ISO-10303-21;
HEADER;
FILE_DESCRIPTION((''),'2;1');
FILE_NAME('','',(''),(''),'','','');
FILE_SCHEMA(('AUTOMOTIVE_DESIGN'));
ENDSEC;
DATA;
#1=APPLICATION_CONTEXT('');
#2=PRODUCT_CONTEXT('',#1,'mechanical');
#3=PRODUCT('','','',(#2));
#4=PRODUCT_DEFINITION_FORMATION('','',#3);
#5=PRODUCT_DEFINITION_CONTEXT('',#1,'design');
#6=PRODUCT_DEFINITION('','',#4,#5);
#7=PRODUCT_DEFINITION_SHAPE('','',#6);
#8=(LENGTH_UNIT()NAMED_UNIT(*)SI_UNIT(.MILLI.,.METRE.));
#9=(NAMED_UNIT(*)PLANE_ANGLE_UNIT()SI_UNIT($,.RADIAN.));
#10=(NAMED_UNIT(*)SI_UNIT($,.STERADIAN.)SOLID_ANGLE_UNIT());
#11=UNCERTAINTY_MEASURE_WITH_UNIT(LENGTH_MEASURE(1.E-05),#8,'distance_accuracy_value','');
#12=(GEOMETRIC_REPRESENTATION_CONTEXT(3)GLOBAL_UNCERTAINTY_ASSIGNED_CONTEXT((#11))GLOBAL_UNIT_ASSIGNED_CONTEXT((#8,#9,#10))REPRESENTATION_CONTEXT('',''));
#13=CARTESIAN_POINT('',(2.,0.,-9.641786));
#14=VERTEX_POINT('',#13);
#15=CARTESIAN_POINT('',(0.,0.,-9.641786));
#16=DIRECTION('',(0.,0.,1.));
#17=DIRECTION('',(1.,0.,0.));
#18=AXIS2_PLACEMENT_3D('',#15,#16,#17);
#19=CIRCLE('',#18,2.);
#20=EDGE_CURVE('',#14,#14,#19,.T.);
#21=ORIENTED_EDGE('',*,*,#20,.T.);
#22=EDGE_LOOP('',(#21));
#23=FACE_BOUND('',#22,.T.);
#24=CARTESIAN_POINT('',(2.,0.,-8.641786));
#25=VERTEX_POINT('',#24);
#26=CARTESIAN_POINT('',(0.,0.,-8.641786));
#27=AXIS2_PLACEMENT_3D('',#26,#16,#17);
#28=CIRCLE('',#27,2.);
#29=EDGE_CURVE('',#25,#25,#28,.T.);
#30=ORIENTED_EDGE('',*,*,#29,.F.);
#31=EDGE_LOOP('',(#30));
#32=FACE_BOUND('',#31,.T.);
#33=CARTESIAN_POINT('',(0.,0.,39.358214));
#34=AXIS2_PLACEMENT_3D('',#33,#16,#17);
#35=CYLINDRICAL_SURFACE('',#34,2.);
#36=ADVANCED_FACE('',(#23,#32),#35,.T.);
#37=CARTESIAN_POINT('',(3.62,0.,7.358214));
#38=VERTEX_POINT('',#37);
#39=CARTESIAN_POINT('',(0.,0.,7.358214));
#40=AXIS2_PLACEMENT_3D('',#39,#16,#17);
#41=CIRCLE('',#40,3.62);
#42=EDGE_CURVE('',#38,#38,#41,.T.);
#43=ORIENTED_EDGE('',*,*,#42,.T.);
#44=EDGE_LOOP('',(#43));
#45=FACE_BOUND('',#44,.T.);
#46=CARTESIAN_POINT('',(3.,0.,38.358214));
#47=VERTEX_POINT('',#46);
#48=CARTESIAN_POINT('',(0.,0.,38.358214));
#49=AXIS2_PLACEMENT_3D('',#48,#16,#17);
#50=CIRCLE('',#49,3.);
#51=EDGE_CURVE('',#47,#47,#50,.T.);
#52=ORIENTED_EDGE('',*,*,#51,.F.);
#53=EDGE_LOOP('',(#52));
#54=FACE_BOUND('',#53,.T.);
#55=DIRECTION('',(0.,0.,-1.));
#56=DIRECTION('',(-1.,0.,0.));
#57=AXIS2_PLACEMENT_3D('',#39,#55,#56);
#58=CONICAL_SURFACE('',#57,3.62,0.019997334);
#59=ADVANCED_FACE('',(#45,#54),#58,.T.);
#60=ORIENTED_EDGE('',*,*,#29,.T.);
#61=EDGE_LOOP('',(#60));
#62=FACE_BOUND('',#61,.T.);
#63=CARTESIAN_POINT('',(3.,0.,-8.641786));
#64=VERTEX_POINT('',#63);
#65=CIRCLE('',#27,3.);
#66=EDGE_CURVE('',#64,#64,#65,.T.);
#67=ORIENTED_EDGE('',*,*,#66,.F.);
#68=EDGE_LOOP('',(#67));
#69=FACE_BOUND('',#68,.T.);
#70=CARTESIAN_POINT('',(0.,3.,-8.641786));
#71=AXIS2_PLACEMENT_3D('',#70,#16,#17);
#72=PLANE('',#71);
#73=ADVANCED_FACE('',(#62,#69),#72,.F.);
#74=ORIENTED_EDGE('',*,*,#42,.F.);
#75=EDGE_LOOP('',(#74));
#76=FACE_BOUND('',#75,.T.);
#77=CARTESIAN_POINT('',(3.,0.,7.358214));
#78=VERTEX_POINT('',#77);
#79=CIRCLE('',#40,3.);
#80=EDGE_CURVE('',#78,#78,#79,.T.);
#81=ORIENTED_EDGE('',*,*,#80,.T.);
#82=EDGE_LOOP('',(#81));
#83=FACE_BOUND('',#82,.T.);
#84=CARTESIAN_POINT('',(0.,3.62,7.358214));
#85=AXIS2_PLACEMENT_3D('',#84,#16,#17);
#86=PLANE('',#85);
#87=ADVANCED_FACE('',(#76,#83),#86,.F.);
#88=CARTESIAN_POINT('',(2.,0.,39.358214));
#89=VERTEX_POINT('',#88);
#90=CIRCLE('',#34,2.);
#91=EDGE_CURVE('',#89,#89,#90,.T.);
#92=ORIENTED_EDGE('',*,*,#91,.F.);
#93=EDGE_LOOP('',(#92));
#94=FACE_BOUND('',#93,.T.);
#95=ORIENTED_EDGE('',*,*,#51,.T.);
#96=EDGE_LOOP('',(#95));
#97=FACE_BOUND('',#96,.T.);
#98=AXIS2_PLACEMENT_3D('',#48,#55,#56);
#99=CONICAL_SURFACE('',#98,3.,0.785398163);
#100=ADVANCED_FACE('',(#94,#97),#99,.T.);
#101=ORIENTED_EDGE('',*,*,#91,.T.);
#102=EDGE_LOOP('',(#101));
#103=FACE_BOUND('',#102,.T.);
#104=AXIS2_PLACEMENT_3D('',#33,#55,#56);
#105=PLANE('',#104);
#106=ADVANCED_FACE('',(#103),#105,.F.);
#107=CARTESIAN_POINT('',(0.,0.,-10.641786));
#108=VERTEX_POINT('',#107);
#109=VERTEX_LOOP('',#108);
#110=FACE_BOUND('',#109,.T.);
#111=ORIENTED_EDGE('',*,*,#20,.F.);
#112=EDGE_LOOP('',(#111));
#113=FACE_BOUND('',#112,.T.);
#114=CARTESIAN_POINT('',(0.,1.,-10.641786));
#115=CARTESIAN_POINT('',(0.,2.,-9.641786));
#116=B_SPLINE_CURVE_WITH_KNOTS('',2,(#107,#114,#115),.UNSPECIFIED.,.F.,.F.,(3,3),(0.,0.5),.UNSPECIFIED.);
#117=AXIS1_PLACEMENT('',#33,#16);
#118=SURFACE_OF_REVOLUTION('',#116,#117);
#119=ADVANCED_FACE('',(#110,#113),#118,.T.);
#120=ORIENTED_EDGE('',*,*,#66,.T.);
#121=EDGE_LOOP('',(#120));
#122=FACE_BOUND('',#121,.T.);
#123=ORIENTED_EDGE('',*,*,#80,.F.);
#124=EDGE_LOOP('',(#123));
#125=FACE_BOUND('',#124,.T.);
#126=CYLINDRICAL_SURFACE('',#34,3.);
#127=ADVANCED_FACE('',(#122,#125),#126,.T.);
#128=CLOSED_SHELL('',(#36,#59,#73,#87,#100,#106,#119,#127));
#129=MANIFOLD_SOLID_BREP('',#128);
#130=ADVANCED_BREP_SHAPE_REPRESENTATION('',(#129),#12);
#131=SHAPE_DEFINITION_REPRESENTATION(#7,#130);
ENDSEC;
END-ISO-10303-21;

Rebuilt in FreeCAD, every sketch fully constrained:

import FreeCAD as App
import Part
import Sketcher
Q = App.Units.Quantity

doc = App.newDocument("Part")
body = doc.addObject("PartDesign::Body", "Body")

# Sketch on YZ plane
sketch1 = body.newObject("Sketcher::SketchObject", "Sketch")
sketch1.AttachmentSupport = (doc.getObject("YZ_Plane"), [""])
sketch1.MapMode = "FlatFace"
sketch1.addGeometry(Part.LineSegment(App.Vector(2, 39.358214, 0), App.Vector(0, 39.358214, 0)), False)
sketch1.addGeometry(Part.LineSegment(App.Vector(0, 39.358214, 0), App.Vector(0, -10.641786, 0)), False)
sketch1.addGeometry(Part.BSplineCurve([App.Vector(2, -9.641786, 0), App.Vector(1, -10.641786, 0), App.Vector(0, -10.641786, 0)], [3, 3], [0, 0.5], False, 2, [1, 1, 1], False), False)
sketch1.addGeometry(Part.LineSegment(App.Vector(2, -9.641786, 0), App.Vector(2, -8.641786, 0)), False)
sketch1.addGeometry(Part.LineSegment(App.Vector(2, -8.641786, 0), App.Vector(3, -8.641786, 0)), False)
sketch1.addGeometry(Part.LineSegment(App.Vector(3, -8.641786, 0), App.Vector(3, 7.358214, 0)), False)
sketch1.addGeometry(Part.LineSegment(App.Vector(3, 7.358214, 0), App.Vector(3.62, 7.358214, 0)), False)
sketch1.addGeometry(Part.LineSegment(App.Vector(3.62, 7.358214, 0), App.Vector(3, 38.358214, 0)), False)
sketch1.addGeometry(Part.LineSegment(App.Vector(3, 38.358214, 0), App.Vector(2, 39.358214, 0)), False)
sketch1.addConstraint(Sketcher.Constraint("Block", 2))
sketch1.addConstraint(Sketcher.Constraint("Coincident", 0, 2, 1, 1))
sketch1.addConstraint(Sketcher.Constraint("Coincident", 1, 2, 2, 2))
sketch1.addConstraint(Sketcher.Constraint("Coincident", 2, 1, 3, 1))
sketch1.addConstraint(Sketcher.Constraint("Coincident", 3, 2, 4, 1))
sketch1.addConstraint(Sketcher.Constraint("Coincident", 4, 2, 5, 1))
sketch1.addConstraint(Sketcher.Constraint("Coincident", 5, 2, 6, 1))
sketch1.addConstraint(Sketcher.Constraint("Coincident", 6, 2, 7, 1))
sketch1.addConstraint(Sketcher.Constraint("Coincident", 7, 2, 8, 1))
sketch1.addConstraint(Sketcher.Constraint("Coincident", 8, 2, 0, 1))
sketch1.addConstraint(Sketcher.Constraint("Horizontal", 0))
sketch1.addConstraint(Sketcher.Constraint("Vertical", 1))
sketch1.addConstraint(Sketcher.Constraint("Vertical", 3))
sketch1.addConstraint(Sketcher.Constraint("Horizontal", 4))
sketch1.addConstraint(Sketcher.Constraint("Vertical", 5))
sketch1.addConstraint(Sketcher.Constraint("Horizontal", 6))
sketch1.addConstraint(Sketcher.Constraint("Vertical", 5, 2, 7, 2))
sketch1.addConstraint(Sketcher.Constraint("Vertical", 3, 2, 8, 2))
sketch1.addConstraint(Sketcher.Constraint("Equal", 4, 3))
sketch1.addConstraint(Sketcher.Constraint("DistanceX", 4, 1, 4, 2, 1.0))
sketch1.addConstraint(Sketcher.Constraint("DistanceY", 1, 2, 1, 1, 50.0))
sketch1.addConstraint(Sketcher.Constraint("DistanceY", 5, 1, 5, 2, 16.0))
sketch1.addConstraint(Sketcher.Constraint("Angle", 8, Q("135 deg")))
sketch1.addConstraint(Sketcher.Constraint("DistanceX", 6, 1, 6, 2, 0.62))
revolution = body.newObject("PartDesign::Revolution", "Revolution")
revolution.Profile = sketch1
revolution.ReferenceAxis = (sketch1, ["V_Axis"])
revolution.Angle = 360

doc.recompute()
